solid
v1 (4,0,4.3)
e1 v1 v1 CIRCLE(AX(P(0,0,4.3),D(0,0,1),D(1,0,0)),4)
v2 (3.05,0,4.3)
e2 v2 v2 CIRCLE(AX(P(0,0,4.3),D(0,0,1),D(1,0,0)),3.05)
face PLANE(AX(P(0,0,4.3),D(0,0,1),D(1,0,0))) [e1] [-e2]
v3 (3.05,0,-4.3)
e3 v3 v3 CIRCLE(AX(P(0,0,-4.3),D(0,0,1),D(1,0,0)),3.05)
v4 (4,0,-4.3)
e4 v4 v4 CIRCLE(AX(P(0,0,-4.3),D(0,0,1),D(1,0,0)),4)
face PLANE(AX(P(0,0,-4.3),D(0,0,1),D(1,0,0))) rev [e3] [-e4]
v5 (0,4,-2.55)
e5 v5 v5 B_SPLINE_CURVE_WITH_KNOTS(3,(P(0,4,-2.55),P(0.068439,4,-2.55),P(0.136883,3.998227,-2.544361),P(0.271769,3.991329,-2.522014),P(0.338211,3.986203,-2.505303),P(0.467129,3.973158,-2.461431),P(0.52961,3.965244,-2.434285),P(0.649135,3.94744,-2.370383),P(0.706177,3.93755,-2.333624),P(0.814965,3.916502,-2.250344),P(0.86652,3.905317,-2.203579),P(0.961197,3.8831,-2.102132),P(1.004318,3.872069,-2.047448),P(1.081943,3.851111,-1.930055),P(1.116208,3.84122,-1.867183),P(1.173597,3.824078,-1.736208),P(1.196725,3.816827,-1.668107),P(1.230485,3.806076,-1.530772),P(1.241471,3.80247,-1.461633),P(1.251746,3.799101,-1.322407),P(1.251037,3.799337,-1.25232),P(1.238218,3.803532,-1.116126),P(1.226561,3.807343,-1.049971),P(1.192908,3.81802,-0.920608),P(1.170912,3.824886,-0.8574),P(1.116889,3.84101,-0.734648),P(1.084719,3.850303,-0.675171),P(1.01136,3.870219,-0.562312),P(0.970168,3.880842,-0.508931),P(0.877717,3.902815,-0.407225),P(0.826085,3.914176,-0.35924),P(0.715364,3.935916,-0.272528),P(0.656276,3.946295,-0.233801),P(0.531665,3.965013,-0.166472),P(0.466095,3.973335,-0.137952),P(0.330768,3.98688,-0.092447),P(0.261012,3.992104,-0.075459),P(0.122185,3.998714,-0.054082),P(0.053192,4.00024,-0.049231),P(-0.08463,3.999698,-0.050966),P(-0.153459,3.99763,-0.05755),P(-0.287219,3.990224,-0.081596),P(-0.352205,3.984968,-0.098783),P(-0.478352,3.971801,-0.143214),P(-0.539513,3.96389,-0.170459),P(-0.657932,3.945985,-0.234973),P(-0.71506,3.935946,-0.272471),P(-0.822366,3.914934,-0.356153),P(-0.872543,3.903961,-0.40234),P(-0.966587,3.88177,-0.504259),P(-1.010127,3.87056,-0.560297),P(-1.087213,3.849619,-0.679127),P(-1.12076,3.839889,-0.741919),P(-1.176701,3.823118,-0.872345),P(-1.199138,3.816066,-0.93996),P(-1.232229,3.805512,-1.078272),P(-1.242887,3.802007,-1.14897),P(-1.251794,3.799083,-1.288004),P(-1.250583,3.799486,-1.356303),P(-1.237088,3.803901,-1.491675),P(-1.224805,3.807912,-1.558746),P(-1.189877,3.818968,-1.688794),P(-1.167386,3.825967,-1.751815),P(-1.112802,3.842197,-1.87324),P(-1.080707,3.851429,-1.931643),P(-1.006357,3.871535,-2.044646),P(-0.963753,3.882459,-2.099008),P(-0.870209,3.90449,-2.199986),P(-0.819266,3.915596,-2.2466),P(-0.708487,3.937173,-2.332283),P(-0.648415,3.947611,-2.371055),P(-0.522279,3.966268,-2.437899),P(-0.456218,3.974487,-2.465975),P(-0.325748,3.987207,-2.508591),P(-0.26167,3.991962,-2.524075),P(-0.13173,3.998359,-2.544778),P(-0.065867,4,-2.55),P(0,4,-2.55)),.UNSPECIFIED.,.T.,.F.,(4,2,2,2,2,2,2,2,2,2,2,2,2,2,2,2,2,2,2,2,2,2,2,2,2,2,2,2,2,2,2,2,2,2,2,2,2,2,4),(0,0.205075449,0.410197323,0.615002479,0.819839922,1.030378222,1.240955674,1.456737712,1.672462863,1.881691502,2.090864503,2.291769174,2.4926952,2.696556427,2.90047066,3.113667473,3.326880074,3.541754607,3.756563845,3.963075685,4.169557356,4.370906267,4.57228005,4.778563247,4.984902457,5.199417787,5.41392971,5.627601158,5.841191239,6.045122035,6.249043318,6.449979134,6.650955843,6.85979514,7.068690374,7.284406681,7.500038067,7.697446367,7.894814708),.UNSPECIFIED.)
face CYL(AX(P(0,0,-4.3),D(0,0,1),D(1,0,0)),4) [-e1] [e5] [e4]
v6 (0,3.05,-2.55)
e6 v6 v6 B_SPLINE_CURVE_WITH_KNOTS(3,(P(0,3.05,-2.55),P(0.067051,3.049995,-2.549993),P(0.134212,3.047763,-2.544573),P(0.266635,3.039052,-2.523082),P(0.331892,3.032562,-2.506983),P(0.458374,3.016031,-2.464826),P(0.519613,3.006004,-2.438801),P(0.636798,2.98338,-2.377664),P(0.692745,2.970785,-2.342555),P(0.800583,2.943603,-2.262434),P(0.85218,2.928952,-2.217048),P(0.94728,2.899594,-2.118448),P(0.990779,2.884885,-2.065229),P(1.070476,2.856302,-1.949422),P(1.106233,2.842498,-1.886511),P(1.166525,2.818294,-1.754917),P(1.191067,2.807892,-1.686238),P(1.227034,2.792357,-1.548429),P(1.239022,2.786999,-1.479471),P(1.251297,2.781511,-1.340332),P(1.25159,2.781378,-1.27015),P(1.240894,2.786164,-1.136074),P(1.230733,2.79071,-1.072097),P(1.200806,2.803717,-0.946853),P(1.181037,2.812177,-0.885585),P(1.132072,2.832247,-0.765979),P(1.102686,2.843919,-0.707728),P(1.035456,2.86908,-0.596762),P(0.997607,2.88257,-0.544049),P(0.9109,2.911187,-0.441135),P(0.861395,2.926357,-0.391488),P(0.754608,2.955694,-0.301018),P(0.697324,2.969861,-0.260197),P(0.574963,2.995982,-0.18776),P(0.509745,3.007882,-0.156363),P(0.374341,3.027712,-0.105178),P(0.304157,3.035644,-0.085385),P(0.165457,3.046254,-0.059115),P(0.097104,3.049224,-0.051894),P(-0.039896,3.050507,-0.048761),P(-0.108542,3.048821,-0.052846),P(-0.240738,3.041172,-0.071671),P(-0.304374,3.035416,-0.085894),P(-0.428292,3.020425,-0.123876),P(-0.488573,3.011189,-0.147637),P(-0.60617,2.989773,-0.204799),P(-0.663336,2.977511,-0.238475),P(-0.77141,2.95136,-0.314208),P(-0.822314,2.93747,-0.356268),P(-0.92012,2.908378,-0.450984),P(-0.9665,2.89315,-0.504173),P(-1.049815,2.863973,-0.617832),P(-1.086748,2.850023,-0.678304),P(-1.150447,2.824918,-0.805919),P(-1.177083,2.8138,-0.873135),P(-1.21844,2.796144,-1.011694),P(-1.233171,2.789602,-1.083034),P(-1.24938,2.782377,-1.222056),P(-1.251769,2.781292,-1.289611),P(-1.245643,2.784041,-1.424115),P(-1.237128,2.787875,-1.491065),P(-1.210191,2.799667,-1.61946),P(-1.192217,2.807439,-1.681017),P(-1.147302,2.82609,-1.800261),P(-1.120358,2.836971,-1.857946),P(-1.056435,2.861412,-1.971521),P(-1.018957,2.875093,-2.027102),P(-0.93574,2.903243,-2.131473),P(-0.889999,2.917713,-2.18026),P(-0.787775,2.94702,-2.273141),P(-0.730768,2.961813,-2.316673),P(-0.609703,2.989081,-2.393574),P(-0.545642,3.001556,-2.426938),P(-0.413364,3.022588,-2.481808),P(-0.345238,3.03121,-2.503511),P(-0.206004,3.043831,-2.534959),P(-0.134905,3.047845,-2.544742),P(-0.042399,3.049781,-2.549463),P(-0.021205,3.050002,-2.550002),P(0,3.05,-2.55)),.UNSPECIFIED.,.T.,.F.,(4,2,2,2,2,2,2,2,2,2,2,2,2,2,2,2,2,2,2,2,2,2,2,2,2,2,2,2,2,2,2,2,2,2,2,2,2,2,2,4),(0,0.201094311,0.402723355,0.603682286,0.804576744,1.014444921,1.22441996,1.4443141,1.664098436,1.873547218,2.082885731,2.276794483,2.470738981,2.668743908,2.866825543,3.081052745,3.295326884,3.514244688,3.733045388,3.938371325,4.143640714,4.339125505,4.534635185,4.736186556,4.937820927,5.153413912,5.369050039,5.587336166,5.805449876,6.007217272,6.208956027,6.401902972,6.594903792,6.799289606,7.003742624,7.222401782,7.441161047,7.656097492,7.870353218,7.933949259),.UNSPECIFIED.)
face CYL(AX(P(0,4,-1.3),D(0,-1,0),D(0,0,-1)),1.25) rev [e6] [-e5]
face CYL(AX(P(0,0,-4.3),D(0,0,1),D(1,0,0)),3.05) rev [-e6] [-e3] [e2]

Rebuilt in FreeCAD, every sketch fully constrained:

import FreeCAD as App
import Part
import Sketcher

V = App.Vector

doc = App.newDocument("Part")
body = doc.addObject("PartDesign::Body", "Body")

sketch1 = body.newObject("Sketcher::SketchObject", "Sketch")
sketch1.AttachmentSupport = (doc.getObject("XY_Plane"), [""])
sketch1.MapMode = "FlatFace"
sketch1.addGeometry([
    Part.Circle(V(0, 0, 0), V(0, 0, 1), 4),
    Part.Circle(V(0, 0, 0), V(0, 0, 1), 3),
], False)
sketch1.addConstraint([
    Sketcher.Constraint("Coincident", 0, 3, -1, 1),
    Sketcher.Constraint("Coincident", 1, 3, -1, 1),
    Sketcher.Constraint("Diameter", 0, 8.0),
    Sketcher.Constraint("Diameter", 1, 6.1),
])
pad1 = body.newObject("PartDesign::Pad", "Pad")
pad1.Profile = sketch1
pad1.Length = 8.6
pad1.Midplane = True

sketch2 = body.newObject("Sketcher::SketchObject", "Sketch001")
sketch2.AttachmentSupport = (doc.getObject("XZ_Plane"), [""])
sketch2.MapMode = "FlatFace"
sketch2.addGeometry(Part.Circle(V(0, -1.3, 0), V(0, 0, 1), 1.2), False)
sketch2.addConstraint([
    Sketcher.Constraint("PointOnObject", 0, 3, -2),
    Sketcher.Constraint("Diameter", 0, 2.5),
    Sketcher.Constraint("DistanceY", 0, 3, -1, 1, 1.3),
])
pocket1 = body.newObject("PartDesign::Pocket", "Pocket")
pocket1.Profile = sketch2
pocket1.Type = "ThroughAll"

doc.recompute()
